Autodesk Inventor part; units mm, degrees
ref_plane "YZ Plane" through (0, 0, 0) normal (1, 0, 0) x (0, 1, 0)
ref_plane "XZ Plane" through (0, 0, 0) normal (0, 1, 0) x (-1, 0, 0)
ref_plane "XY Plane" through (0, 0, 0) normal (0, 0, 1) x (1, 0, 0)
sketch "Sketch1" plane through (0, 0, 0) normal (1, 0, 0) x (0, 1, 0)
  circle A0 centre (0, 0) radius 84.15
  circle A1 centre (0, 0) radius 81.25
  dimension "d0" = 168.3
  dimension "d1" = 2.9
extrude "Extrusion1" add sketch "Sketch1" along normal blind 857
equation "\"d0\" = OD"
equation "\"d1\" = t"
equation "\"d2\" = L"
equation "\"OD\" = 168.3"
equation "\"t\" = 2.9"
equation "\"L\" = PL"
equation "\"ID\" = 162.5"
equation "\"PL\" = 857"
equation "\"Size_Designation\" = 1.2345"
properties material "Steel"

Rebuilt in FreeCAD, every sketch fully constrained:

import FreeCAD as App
import Part
import Sketcher

V = App.Vector

doc = App.newDocument("Part")
params = doc.addObject("Spreadsheet::Sheet", "Params")
for row, (alias, value) in enumerate([
    ("sketch1_diameter", "168.3 mm"),
    ("sketch1_diameter2", "162.5 mm"),
    ("pad1_length", "857 mm"),
], start=1):
    params.set(f"A{row}", alias)
    params.set(f"B{row}", "=" + value)
    params.setAlias(f"B{row}", alias)

body = doc.addObject("PartDesign::Body", "Body")

# Sketch on YZ plane
sketch1 = body.newObject("Sketcher::SketchObject", "Sketch")
sketch1.AttachmentSupport = (doc.getObject("YZ_Plane"), [""])
sketch1.MapMode = "FlatFace"
sketch1.addGeometry([
    Part.Circle(V(0, 0, 0), V(0, 0, 1), 84),
    Part.Circle(V(0, 0, 0), V(0, 0, 1), 81),
], False)
sketch1.addConstraint([
    Sketcher.Constraint("Coincident", 0, 3, -1, 1),
    Sketcher.Constraint("Coincident", 1, 3, -1, 1),
    Sketcher.Constraint("Diameter", 0, 168.3),
    Sketcher.Constraint("Diameter", 1, 162.5),
])
sketch1.setExpression("Constraints[2]", "Params.sketch1_diameter")
sketch1.setExpression("Constraints[3]", "Params.sketch1_diameter2")
pad1 = body.newObject("PartDesign::Pad", "Pad")
pad1.Profile = sketch1
pad1.setExpression("Length", "Params.pad1_length")

doc.recompute()
